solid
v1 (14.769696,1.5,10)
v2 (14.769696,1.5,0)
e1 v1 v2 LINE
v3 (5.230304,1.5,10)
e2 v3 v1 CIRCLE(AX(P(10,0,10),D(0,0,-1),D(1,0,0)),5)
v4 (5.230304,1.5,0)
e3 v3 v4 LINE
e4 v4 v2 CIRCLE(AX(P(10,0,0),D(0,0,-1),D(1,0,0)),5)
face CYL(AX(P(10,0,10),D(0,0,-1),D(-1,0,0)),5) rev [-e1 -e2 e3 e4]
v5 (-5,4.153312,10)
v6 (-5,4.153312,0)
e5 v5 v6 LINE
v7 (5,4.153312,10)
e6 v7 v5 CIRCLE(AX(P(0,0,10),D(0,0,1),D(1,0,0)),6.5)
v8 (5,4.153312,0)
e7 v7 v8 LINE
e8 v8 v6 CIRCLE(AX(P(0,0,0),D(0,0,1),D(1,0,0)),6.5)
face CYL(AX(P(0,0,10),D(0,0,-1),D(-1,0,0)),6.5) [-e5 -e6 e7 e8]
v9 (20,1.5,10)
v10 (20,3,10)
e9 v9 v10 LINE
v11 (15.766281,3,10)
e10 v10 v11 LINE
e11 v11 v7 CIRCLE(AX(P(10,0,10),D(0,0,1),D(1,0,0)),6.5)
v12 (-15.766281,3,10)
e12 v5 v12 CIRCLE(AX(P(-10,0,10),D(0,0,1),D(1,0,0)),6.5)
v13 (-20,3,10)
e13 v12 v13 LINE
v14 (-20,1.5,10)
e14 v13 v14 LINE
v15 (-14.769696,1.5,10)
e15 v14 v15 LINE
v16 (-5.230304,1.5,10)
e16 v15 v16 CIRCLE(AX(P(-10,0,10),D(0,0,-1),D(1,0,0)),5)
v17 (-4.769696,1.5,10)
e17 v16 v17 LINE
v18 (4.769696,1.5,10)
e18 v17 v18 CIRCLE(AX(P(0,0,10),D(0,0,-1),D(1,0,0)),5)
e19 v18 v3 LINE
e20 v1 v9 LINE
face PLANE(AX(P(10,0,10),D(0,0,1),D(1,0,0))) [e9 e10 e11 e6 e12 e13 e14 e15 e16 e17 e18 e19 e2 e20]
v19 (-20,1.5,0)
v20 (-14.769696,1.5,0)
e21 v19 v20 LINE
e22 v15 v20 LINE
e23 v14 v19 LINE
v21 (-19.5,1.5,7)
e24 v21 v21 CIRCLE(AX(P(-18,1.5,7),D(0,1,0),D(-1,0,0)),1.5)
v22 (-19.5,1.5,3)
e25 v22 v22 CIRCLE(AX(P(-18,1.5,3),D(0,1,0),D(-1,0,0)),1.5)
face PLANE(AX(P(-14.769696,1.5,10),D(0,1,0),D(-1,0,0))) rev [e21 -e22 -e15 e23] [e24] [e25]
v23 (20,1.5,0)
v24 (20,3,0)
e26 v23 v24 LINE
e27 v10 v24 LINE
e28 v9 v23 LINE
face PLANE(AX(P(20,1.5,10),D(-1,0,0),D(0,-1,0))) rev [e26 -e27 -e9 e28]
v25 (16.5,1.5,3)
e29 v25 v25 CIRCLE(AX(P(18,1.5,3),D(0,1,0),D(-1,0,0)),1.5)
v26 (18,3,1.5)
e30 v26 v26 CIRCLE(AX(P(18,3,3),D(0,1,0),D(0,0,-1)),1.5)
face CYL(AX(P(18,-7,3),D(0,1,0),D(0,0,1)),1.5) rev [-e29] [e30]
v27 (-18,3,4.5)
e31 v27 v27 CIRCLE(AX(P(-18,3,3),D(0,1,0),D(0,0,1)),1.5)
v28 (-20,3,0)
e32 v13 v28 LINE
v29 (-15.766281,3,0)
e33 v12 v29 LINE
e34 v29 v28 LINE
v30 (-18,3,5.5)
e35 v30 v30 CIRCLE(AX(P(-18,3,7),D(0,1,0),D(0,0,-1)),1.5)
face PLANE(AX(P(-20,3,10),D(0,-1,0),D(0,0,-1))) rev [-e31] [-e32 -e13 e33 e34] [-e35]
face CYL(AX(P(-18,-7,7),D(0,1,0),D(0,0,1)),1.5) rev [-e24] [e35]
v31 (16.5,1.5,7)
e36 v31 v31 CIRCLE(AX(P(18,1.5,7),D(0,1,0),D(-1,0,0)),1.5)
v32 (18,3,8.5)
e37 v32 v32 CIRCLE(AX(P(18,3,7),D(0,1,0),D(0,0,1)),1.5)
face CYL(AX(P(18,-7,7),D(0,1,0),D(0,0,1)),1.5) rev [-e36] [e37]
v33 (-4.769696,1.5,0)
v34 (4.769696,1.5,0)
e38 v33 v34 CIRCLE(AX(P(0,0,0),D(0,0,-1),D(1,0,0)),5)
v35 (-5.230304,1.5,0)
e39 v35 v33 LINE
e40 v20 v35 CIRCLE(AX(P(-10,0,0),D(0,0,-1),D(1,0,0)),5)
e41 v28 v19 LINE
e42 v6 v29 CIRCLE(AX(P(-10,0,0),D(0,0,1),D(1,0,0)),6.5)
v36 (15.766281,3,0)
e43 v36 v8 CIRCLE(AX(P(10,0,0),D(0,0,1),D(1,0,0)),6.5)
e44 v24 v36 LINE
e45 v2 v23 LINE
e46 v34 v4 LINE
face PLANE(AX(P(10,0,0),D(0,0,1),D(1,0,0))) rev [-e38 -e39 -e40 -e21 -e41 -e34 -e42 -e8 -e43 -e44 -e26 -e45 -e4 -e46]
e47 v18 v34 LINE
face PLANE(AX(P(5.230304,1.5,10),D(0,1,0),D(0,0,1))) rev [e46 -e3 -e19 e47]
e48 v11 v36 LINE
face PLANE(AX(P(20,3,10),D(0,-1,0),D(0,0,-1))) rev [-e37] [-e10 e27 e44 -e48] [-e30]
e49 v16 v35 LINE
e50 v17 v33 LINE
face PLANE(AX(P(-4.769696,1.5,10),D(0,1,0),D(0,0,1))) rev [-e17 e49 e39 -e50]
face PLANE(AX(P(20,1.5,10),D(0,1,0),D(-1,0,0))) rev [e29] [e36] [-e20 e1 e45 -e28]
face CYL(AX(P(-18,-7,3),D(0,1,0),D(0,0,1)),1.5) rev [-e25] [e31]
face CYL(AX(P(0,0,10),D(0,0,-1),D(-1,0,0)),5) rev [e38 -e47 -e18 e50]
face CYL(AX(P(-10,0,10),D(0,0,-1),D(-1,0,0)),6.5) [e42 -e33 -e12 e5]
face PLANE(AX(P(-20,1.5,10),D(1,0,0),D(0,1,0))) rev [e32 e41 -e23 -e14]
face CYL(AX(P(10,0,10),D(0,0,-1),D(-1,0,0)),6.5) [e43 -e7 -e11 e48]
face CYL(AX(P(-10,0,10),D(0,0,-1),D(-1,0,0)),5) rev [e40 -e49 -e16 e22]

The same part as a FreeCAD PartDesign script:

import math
import FreeCAD as App
import Part
import Sketcher
from FreeCAD import Vector

doc = App.newDocument("Part")
body = doc.addObject("PartDesign::Body", "Body")

sketch1 = doc.addObject("Sketcher::SketchObject", "Sketch")
body.addObject(sketch1)
sketch1.AttachmentSupport = (doc.XY_Plane, [""])
sketch1.MapMode = "FlatFace"
sketch1.addGeometry([
    Part.LineSegment(Vector(-20, 3, 0), Vector(-20, 1.5, 0)),
    Part.LineSegment(Vector(-20, 1.5, 0), Vector(-14.77, 1.5, 0)),
    Part.ArcOfCircle(Part.Circle(Vector(-10, 0, 0), Vector(0, 0, 1), 5), math.radians(17), math.radians(163)),
    Part.LineSegment(Vector(-5.23, 1.5, 0), Vector(-4.77, 1.5, 0)),
    Part.ArcOfCircle(Part.Circle(Vector(0, 0, 0), Vector(0, 0, 1), 5), math.radians(17), math.radians(163)),
    Part.LineSegment(Vector(4.77, 1.5, 0), Vector(5.23, 1.5, 0)),
    Part.ArcOfCircle(Part.Circle(Vector(10, 0, 0), Vector(0, 0, 1), 5), math.radians(17), math.radians(163)),
    Part.LineSegment(Vector(14.77, 1.5, 0), Vector(20, 1.5, 0)),
    Part.LineSegment(Vector(20, 1.5, 0), Vector(20, 3, 0)),
    Part.LineSegment(Vector(20, 3, 0), Vector(15.77, 3, 0)),
    Part.ArcOfCircle(Part.Circle(Vector(10, 0, 0), Vector(0, 0, 1), 6.5), math.radians(27), math.radians(140)),
    Part.ArcOfCircle(Part.Circle(Vector(0, 0, 0), Vector(0, 0, 1), 6.5), math.radians(40), math.radians(140)),
    Part.ArcOfCircle(Part.Circle(Vector(-10, 0, 0), Vector(0, 0, 1), 6.5), math.radians(40), math.radians(153)),
    Part.LineSegment(Vector(-15.77, 3, 0), Vector(-20, 3, 0)),
], False)
sketch1.addConstraint([
    Sketcher.Constraint("Coincident", 0, 2, 1, 1),
    Sketcher.Constraint("Coincident", 1, 2, 2, 2),
    Sketcher.Constraint("Coincident", 2, 1, 3, 1),
    Sketcher.Constraint("Coincident", 3, 2, 4, 2),
    Sketcher.Constraint("Coincident", 4, 1, 5, 1),
    Sketcher.Constraint("Coincident", 5, 2, 6, 2),
    Sketcher.Constraint("Coincident", 6, 1, 7, 1),
    Sketcher.Constraint("Coincident", 7, 2, 8, 1),
    Sketcher.Constraint("Coincident", 8, 2, 9, 1),
    Sketcher.Constraint("Coincident", 9, 2, 10, 1),
    Sketcher.Constraint("Coincident", 10, 2, 11, 1),
    Sketcher.Constraint("Coincident", 11, 2, 12, 1),
    Sketcher.Constraint("Coincident", 12, 2, 13, 1),
    Sketcher.Constraint("Coincident", 13, 2, 0, 1),
    Sketcher.Constraint("Vertical", 0),
    Sketcher.Constraint("Horizontal", 1),
    Sketcher.Constraint("Horizontal", 3),
    Sketcher.Constraint("Horizontal", 5),
    Sketcher.Constraint("Horizontal", 7),
    Sketcher.Constraint("Vertical", 8),
    Sketcher.Constraint("Horizontal", 9),
    Sketcher.Constraint("Horizontal", 13),
    Sketcher.Constraint("Coincident", 4, 3, -1, 1),
    Sketcher.Constraint("Coincident", 11, 3, -1, 1),
    Sketcher.Constraint("Coincident", 10, 3, 6, 3),
    Sketcher.Constraint("Coincident", 12, 3, 2, 3),
    Sketcher.Constraint("Equal", 2, 4),
    Sketcher.Constraint("Equal", 4, 6),
    Sketcher.Constraint("Equal", 10, 11),
    Sketcher.Constraint("Equal", 11, 12),
    Sketcher.Constraint("Symmetric", 2, 3, 6, 3, -1, 1),
    Sketcher.Constraint("Symmetric", 2, 1, 5, 2, -2),
    Sketcher.Constraint("Symmetric", 0, 2, 7, 2, -2),
    Sketcher.Constraint("Horizontal", 1, 2, 2, 1),
    Sketcher.Constraint("Horizontal", 9, 2, 12, 2),
    Sketcher.Constraint("Radius", 2, 5.0),
    Sketcher.Constraint("Radius", 10, 6.5),
    Sketcher.Constraint("DistanceY", 0, 2, 0, 1, 1.5),
    Sketcher.Constraint("DistanceX", 2, 3, -1, 1, 10.0),
    Sketcher.Constraint("DistanceX", 0, 2, -1, 1, 20.0),
    Sketcher.Constraint("DistanceY", -1, 1, 8, 2, 3.0),
])
pad1 = doc.addObject("PartDesign::Pad", "Pad")
body.addObject(pad1)
pad1.Profile = sketch1
pad1.Length = 10

sketch2 = doc.addObject("Sketcher::SketchObject", "Sketch001")
body.addObject(sketch2)
sketch2.AttachmentSupport = (doc.XZ_Plane, [""])
sketch2.MapMode = "FlatFace"
sketch2.AttachmentOffset = App.Placement(Vector(0, 0, -3), App.Rotation())
sketch2.addGeometry([
    Part.Circle(Vector(-18, 3, 0), Vector(0, 0, 1), 1.5),
    Part.Circle(Vector(-18, 7, 0), Vector(0, 0, 1), 1.5),
    Part.Circle(Vector(18, 7, 0), Vector(0, 0, 1), 1.5),
    Part.Circle(Vector(18, 3, 0), Vector(0, 0, 1), 1.5),
], False)
sketch2.addConstraint([
    Sketcher.Constraint("Equal", 0, 1),
    Sketcher.Constraint("Equal", 1, 2),
    Sketcher.Constraint("Equal", 2, 3),
    Sketcher.Constraint("Symmetric", 1, 3, 2, 3, -2),
    Sketcher.Constraint("Symmetric", 0, 3, 3, 3, -2),
    Sketcher.Constraint("Vertical", 0, 3, 1, 3),
    Sketcher.Constraint("Diameter", 0, 3.0),
    Sketcher.Constraint("DistanceX", 0, 3, -1, 1, 18.0),
    Sketcher.Constraint("DistanceY", -1, 1, 0, 3, 3.0),
    Sketcher.Constraint("DistanceY", -1, 1, 1, 3, 7.0),
])
pocket1 = doc.addObject("PartDesign::Pocket", "Pocket")
body.addObject(pocket1)
pocket1.Profile = sketch2
pocket1.Length = 10
pocket1.Reversed = True

doc.recompute()
